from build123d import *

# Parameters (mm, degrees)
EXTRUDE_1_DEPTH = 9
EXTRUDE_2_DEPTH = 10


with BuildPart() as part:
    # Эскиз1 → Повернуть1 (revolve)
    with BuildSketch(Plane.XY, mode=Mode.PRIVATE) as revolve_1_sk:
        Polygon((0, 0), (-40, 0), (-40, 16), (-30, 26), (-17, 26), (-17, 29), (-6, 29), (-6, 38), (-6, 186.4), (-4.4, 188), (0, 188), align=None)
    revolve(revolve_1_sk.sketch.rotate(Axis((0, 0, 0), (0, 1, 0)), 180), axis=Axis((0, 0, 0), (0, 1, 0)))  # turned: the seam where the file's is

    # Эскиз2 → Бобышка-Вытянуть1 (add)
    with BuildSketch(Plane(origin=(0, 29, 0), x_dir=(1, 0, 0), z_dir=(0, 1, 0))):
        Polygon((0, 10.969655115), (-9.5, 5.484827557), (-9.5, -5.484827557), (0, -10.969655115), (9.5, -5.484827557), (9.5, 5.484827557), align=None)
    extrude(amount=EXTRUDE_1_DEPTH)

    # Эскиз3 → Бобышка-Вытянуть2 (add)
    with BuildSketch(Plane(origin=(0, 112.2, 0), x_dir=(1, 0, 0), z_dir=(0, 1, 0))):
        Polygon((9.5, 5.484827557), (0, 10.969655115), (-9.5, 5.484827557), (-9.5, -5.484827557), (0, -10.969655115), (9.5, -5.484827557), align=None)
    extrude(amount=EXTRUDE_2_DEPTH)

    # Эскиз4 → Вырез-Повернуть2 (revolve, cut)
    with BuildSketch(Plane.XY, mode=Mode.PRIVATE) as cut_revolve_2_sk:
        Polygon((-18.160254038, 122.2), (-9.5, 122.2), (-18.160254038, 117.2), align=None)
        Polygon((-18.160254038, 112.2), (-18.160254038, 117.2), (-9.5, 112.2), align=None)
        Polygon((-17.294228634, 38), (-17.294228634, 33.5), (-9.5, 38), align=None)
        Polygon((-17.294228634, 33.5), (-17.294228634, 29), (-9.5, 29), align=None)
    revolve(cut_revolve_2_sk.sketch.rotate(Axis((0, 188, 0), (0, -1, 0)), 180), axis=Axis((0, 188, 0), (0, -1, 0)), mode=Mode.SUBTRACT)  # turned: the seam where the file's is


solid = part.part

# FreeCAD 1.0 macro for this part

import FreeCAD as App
import Part
import Sketcher
from FreeCAD import Vector
Q = App.Units.Quantity

doc = App.newDocument("Part")
params = doc.addObject("Spreadsheet::Sheet", "Params")
for row, (alias, value) in enumerate([
    ("sketch1_width", "40 mm"),
    ("sketch1_width2", "11 mm"),
    ("sketch1_width3", "13 mm"),
    ("sketch1_height", "188 mm"),
    ("sketch1_height2", "3 mm"),
    ("revolution_angle", "360 deg"),
    ("pad1_length", "9 mm"),
    ("pad2_length", "10 mm"),
    ("sketch4_height", "5 mm"),
    ("sketch4_length", "9 mm"),
    ("groove_angle", "360 deg"),
], start=1):
    params.set(f"A{row}", alias)
    params.set(f"B{row}", "=" + value)
    params.setAlias(f"B{row}", alias)

body = doc.addObject("PartDesign::Body", "Body")

# Sketch on XY plane
sketch1 = body.newObject("Sketcher::SketchObject", "Sketch")
sketch1.AttachmentSupport = (doc.getObject("XY_Plane"), [""])
sketch1.MapMode = "FlatFace"
sketch1.addGeometry([
    Part.LineSegment(Vector(-40, 0, 0), Vector(0, 0, 0)),  # 0
    Part.LineSegment(Vector(0, 0, 0), Vector(0, 188, 0)),  # 1
    Part.LineSegment(Vector(0, 188, 0), Vector(-4.4, 188, 0)),  # 2
    Part.LineSegment(Vector(-4.4, 188, 0), Vector(-6, 186.4, 0)),  # 3
    Part.LineSegment(Vector(-6, 186.4, 0), Vector(-6, 29, 0)),  # 4
    Part.LineSegment(Vector(-6, 29, 0), Vector(-17, 29, 0)),  # 5
    Part.LineSegment(Vector(-17, 29, 0), Vector(-17, 26, 0)),  # 6
    Part.LineSegment(Vector(-17, 26, 0), Vector(-30, 26, 0)),  # 7
    Part.LineSegment(Vector(-30, 26, 0), Vector(-40, 16, 0)),  # 8
    Part.LineSegment(Vector(-40, 16, 0), Vector(-40, 0, 0)),  # 9
], False)
sketch1.addConstraint([
    Sketcher.Constraint("Coincident", 0, 2, 1, 1),
    Sketcher.Constraint("Coincident", 1, 2, 2, 1),
    Sketcher.Constraint("Coincident", 2, 2, 3, 1),
    Sketcher.Constraint("Coincident", 3, 2, 4, 1),
    Sketcher.Constraint("Coincident", 4, 2, 5, 1),
    Sketcher.Constraint("Coincident", 5, 2, 6, 1),
    Sketcher.Constraint("Coincident", 6, 2, 7, 1),
    Sketcher.Constraint("Coincident", 7, 2, 8, 1),
    Sketcher.Constraint("Coincident", 8, 2, 9, 1),
    Sketcher.Constraint("Coincident", 9, 2, 0, 1),
    Sketcher.Constraint("Horizontal", 0),
    Sketcher.Constraint("Vertical", 1),
    Sketcher.Constraint("Horizontal", 2),
    Sketcher.Constraint("Vertical", 4),
    Sketcher.Constraint("Horizontal", 5),
    Sketcher.Constraint("Vertical", 6),
    Sketcher.Constraint("Horizontal", 7),
    Sketcher.Constraint("Vertical", 9),
    Sketcher.Constraint("Coincident", 0, 2, -1, 1),
    Sketcher.Constraint("Parallel", 3, 8),
    Sketcher.Constraint("DistanceX", 0, 1, 0, 2, 40.0),
    Sketcher.Constraint("DistanceX", 5, 2, 5, 1, 11.0),
    Sketcher.Constraint("DistanceX", 7, 2, 7, 1, 13.0),
    Sketcher.Constraint("DistanceY", 1, 1, 1, 2, 188.0),
    Sketcher.Constraint("DistanceY", 6, 2, 6, 1, 3.0),
    Sketcher.Constraint("DistanceY", 9, 2, 9, 1, 16.0),
    Sketcher.Constraint("Angle", 3, Q("-135 deg")),
    Sketcher.Constraint("DistanceX", 2, 2, 2, 1, 4.4),
    Sketcher.Constraint("DistanceX", 3, 2, -1, 1, 6.0),
])
sketch1.setExpression("Constraints[20]", "Params.sketch1_width")
sketch1.setExpression("Constraints[21]", "Params.sketch1_width2")
sketch1.setExpression("Constraints[22]", "Params.sketch1_width3")
sketch1.setExpression("Constraints[23]", "Params.sketch1_height")
sketch1.setExpression("Constraints[24]", "Params.sketch1_height2")
revolution = body.newObject("PartDesign::Revolution", "Revolution")
revolution.Profile = sketch1
revolution.ReferenceAxis = (sketch1, ["V_Axis"])
revolution.setExpression("Angle", "Params.revolution_angle")

# Sketch on XZ plane
sketch2 = body.newObject("Sketcher::SketchObject", "Sketch001")
sketch2.AttachmentSupport = (doc.getObject("XZ_Plane"), [""])
sketch2.MapMode = "FlatFace"
sketch2.AttachmentOffset = App.Placement(Vector(0, 0, -29), App.Rotation())
sketch2.addGeometry([
    Part.LineSegment(Vector(0, -11, 0), Vector(-10, -5, 0)),  # 0
    Part.LineSegment(Vector(-10, -5, 0), Vector(-10, 5, 0)),  # 1
    Part.LineSegment(Vector(-10, 5, 0), Vector(0, 11, 0)),  # 2
    Part.LineSegment(Vector(0, 11, 0), Vector(10, 5, 0)),  # 3
    Part.LineSegment(Vector(10, 5, 0), Vector(10, -5, 0)),  # 4
    Part.LineSegment(Vector(10, -5, 0), Vector(0, -11, 0)),  # 5
], False)
sketch2.addConstraint([
    Sketcher.Constraint("Coincident", 0, 2, 1, 1),
    Sketcher.Constraint("Coincident", 1, 2, 2, 1),
    Sketcher.Constraint("Coincident", 2, 2, 3, 1),
    Sketcher.Constraint("Coincident", 3, 2, 4, 1),
    Sketcher.Constraint("Coincident", 4, 2, 5, 1),
    Sketcher.Constraint("Coincident", 5, 2, 0, 1),
    Sketcher.Constraint("Vertical", 1),
    Sketcher.Constraint("Vertical", 4),
    Sketcher.Constraint("Symmetric", 0, 2, 3, 2, -1, 1),
    Sketcher.Constraint("Symmetric", 2, 2, 5, 2, -1, 1),
    Sketcher.Constraint("PointOnObject", 2, 2, -2),
    Sketcher.Constraint("Parallel", 2, 5),
    Sketcher.Constraint("Horizontal", 1, 2, 3, 2),
    Sketcher.Constraint("Angle", 0, Q("150 deg")),
    Sketcher.Constraint("DistanceX", 1, 2, 3, 2, 19.0),
    Sketcher.Constraint("DistanceY", 1, 1, 1, 2, 10.969655),
])
pad1 = body.newObject("PartDesign::Pad", "Pad")
pad1.Profile = sketch2
pad1.setExpression("Length", "Params.pad1_length")
pad1.Reversed = True

# Sketch on XZ plane
sketch3 = body.newObject("Sketcher::SketchObject", "Sketch002")
sketch3.AttachmentSupport = (doc.getObject("XZ_Plane"), [""])
sketch3.MapMode = "FlatFace"
sketch3.AttachmentOffset = App.Placement(Vector(0, 0, -112.2), App.Rotation())
sketch3.addGeometry([
    Part.LineSegment(Vector(10, -5, 0), Vector(0, -11, 0)),  # 0
    Part.LineSegment(Vector(0, -11, 0), Vector(-10, -5, 0)),  # 1
    Part.LineSegment(Vector(-10, -5, 0), Vector(-10, 5, 0)),  # 2
    Part.LineSegment(Vector(-10, 5, 0), Vector(0, 11, 0)),  # 3
    Part.LineSegment(Vector(0, 11, 0), Vector(10, 5, 0)),  # 4
    Part.LineSegment(Vector(10, 5, 0), Vector(10, -5, 0)),  # 5
], False)
sketch3.addConstraint([
    Sketcher.Constraint("Coincident", 0, 2, 1, 1),
    Sketcher.Constraint("Coincident", 1, 2, 2, 1),
    Sketcher.Constraint("Coincident", 2, 2, 3, 1),
    Sketcher.Constraint("Coincident", 3, 2, 4, 1),
    Sketcher.Constraint("Coincident", 4, 2, 5, 1),
    Sketcher.Constraint("Coincident", 5, 2, 0, 1),
    Sketcher.Constraint("Vertical", 2),
    Sketcher.Constraint("Vertical", 5),
    Sketcher.Constraint("Symmetric", 0, 2, 3, 2, -1, 1),
    Sketcher.Constraint("Symmetric", 1, 2, 4, 2, -1, 1),
    Sketcher.Constraint("PointOnObject", 0, 2, -2),
    Sketcher.Constraint("Parallel", 0, 3),
    Sketcher.Constraint("Horizontal", 2, 2, 4, 2),
    Sketcher.Constraint("Angle", 0, Q("-150 deg")),
    Sketcher.Constraint("DistanceX", 2, 2, 4, 2, 19.0),
    Sketcher.Constraint("DistanceY", 2, 1, 2, 2, 10.969655),
])
pad2 = body.newObject("PartDesign::Pad", "Pad001")
pad2.Profile = sketch3
pad2.setExpression("Length", "Params.pad2_length")
pad2.Reversed = True

# Sketch on XY plane
sketch4 = body.newObject("Sketcher::SketchObject", "Sketch003")
sketch4.AttachmentSupport = (doc.getObject("XY_Plane"), [""])
sketch4.MapMode = "FlatFace"
sketch4.addGeometry([
    Part.LineSegment(Vector(-9.5, 122.2, 0), Vector(-18.2, 122.2, 0)),  # 0
    Part.LineSegment(Vector(-18.2, 122.2, 0), Vector(-18.2, 117.2, 0)),  # 1
    Part.LineSegment(Vector(-18.2, 117.2, 0), Vector(-9.5, 122.2, 0)),  # 2
    Part.LineSegment(Vector(-18.2, 117.2, 0), Vector(-18.2, 112.2, 0)),  # 3
    Part.LineSegment(Vector(-18.2, 112.2, 0), Vector(-9.5, 112.2, 0)),  # 4
    Part.LineSegment(Vector(-9.5, 112.2, 0), Vector(-18.2, 117.2, 0)),  # 5
    Part.LineSegment(Vector(-17.3, 38, 0), Vector(-17.3, 33.5, 0)),  # 6
    Part.LineSegment(Vector(-17.3, 33.5, 0), Vector(-9.5, 38, 0)),  # 7
    Part.LineSegment(Vector(-9.5, 38, 0), Vector(-17.3, 38, 0)),  # 8
    Part.LineSegment(Vector(-17.3, 33.5, 0), Vector(-17.3, 29, 0)),  # 9
    Part.LineSegment(Vector(-17.3, 29, 0), Vector(-9.5, 29, 0)),  # 10
    Part.LineSegment(Vector(-9.5, 29, 0), Vector(-17.3, 33.5, 0)),  # 11
], False)
sketch4.addConstraint([
    Sketcher.Constraint("Coincident", 0, 2, 1, 1),
    Sketcher.Constraint("Coincident", 1, 2, 2, 1),
    Sketcher.Constraint("Coincident", 2, 2, 0, 1),
    Sketcher.Constraint("Coincident", 3, 2, 4, 1),
    Sketcher.Constraint("Coincident", 4, 2, 5, 1),
    Sketcher.Constraint("Coincident", 5, 2, 3, 1),
    Sketcher.Constraint("Coincident", 6, 2, 7, 1),
    Sketcher.Constraint("Coincident", 7, 2, 8, 1),
    Sketcher.Constraint("Coincident", 8, 2, 6, 1),
    Sketcher.Constraint("Coincident", 9, 2, 10, 1),
    Sketcher.Constraint("Coincident", 10, 2, 11, 1),
    Sketcher.Constraint("Coincident", 11, 2, 9, 1),
    Sketcher.Constraint("Horizontal", 0),
    Sketcher.Constraint("Vertical", 1),
    Sketcher.Constraint("Vertical", 3),
    Sketcher.Constraint("Horizontal", 4),
    Sketcher.Constraint("Vertical", 6),
    Sketcher.Constraint("Horizontal", 8),
    Sketcher.Constraint("Vertical", 9),
    Sketcher.Constraint("Horizontal", 10),
    Sketcher.Constraint("Coincident", 5, 2, 1, 2),
    Sketcher.Constraint("Coincident", 11, 2, 6, 2),
    Sketcher.Constraint("Parallel", 2, 7),
    Sketcher.Constraint("Parallel", 5, 11),
    Sketcher.Constraint("Vertical", 2, 2, 4, 2),
    Sketcher.Constraint("Vertical", 4, 2, 7, 2),
    Sketcher.Constraint("Vertical", 7, 2, 10, 2),
    Sketcher.Constraint("Equal", 1, 3),
    Sketcher.Constraint("DistanceY", 1, 2, 1, 1, 5.0),
    Sketcher.Constraint("Angle", 2, Q("30 deg")),
    Sketcher.Constraint("Distance", 7, 9.0),
    Sketcher.Constraint("DistanceY", -1, 1, 7, 2, 38.0),
    Sketcher.Constraint("DistanceY", -1, 1, 0, 2, 122.2),
    Sketcher.Constraint("DistanceX", 2, 2, -1, 1, 9.5),
])
sketch4.setExpression("Constraints[28]", "Params.sketch4_height")
sketch4.setExpression("Constraints[30]", "Params.sketch4_length")
groove = body.newObject("PartDesign::Groove", "Groove")
groove.Profile = sketch4
groove.ReferenceAxis = (sketch4, ["V_Axis"])
groove.setExpression("Angle", "Params.groove_angle")

doc.recompute()
